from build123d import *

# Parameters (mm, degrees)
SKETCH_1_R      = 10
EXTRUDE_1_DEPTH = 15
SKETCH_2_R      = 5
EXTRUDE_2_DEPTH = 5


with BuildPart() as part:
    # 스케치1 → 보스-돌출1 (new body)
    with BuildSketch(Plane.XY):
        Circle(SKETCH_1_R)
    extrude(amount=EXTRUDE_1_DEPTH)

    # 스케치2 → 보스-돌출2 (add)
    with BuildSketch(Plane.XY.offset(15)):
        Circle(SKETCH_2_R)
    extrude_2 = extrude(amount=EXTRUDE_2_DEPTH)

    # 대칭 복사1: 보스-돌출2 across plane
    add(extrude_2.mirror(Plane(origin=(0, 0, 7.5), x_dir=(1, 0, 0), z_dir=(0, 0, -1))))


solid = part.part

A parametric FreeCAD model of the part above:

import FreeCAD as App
import Part
import Sketcher

doc = App.newDocument("Part")
body = doc.addObject("PartDesign::Body", "Body")

# Sketch on XY plane
sketch1 = doc.addObject("Sketcher::SketchObject", "Sketch")
body.addObject(sketch1)
sketch1.AttachmentSupport = (doc.XY_Plane, [""])
sketch1.MapMode = "FlatFace"
sketch1.addGeometry(Part.Circle(App.Vector(0, 0, 0), App.Vector(0, 0, 1), 10), False)
sketch1.addConstraint([
    Sketcher.Constraint("Coincident", 0, 3, -1, 1),
    Sketcher.Constraint("Diameter", 0, 20.0),
])
pad1 = doc.addObject("PartDesign::Pad", "Pad")
body.addObject(pad1)
pad1.Profile = sketch1
pad1.Length = 15

# Sketch on XY plane
sketch2 = doc.addObject("Sketcher::SketchObject", "Sketch001")
body.addObject(sketch2)
sketch2.AttachmentSupport = (doc.XY_Plane, [""])
sketch2.MapMode = "FlatFace"
sketch2.AttachmentOffset = App.Placement(App.Vector(0, 0, 15), App.Rotation())
sketch2.addGeometry(Part.Circle(App.Vector(0, 0, 0), App.Vector(0, 0, 1), 5), False)
sketch2.addConstraint([
    Sketcher.Constraint("Coincident", 0, 3, -1, 1),
    Sketcher.Constraint("Diameter", 0, 10.0),
])
pad2 = doc.addObject("PartDesign::Pad", "Pad001")
body.addObject(pad2)
pad2.Profile = sketch2
pad2.Length = 5
doc.recompute()

datumplane = doc.addObject("PartDesign::Plane", "DatumPlane")
body.addObject(datumplane)
datumplane.AttachmentSupport = (doc.XY_Plane, [""])
datumplane.MapMode = "FlatFace"
datumplane.AttachmentOffset = App.Placement(App.Vector(0, 0, 7.5), App.Rotation())
mirrored = doc.addObject("PartDesign::Mirrored", "Mirrored")
body.addObject(mirrored)
mirrored.Originals = [pad2]
mirrored.MirrorPlane = (datumplane, [""])
body.Tip = mirrored

doc.recompute()
